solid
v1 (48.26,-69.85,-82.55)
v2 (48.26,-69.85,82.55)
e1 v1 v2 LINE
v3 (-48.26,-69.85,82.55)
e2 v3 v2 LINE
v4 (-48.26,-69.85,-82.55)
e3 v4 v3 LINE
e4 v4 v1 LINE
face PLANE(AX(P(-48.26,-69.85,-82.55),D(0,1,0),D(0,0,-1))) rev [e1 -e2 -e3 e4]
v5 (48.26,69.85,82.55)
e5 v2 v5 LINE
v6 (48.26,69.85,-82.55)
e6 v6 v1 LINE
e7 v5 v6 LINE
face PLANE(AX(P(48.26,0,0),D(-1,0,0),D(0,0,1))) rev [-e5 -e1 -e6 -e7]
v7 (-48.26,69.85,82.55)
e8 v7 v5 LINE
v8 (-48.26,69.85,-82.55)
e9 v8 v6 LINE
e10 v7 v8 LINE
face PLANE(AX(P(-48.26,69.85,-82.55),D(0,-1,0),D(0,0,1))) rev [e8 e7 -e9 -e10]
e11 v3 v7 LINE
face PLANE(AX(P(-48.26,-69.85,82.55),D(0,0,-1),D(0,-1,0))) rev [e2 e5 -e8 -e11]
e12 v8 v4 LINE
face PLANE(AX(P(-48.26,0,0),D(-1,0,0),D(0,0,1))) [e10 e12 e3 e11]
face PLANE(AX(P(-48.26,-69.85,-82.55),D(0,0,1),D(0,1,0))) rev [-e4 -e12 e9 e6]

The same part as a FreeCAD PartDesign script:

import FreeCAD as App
import Part
import Sketcher
Q = App.Units.Quantity


def add_polygon(sketch, points):
    """Adds a closed chain of lines whose ends are joined by coincident constraints."""
    first, n = sketch.GeometryCount, len(points)
    for a, b in zip(points, points[1:] + points[:1]):
        sketch.addGeometry(Part.LineSegment(App.Vector(*a, 0), App.Vector(*b, 0)), False)
    for i in range(n):
        sketch.addConstraint(Sketcher.Constraint("Coincident", first + i, 2, first + (i + 1) % n, 1))

doc = App.newDocument("Part")
body = doc.addObject("PartDesign::Body", "Body")

# Sketch on XZ plane
sketch1 = body.newObject("Sketcher::SketchObject", "Sketch")
sketch1.AttachmentSupport = (doc.getObject("XZ_Plane"), [""])
sketch1.MapMode = "FlatFace"
add_polygon(sketch1, [(-70, -83), (-70, 83), (70, 83), (70, -83)])  # lines 0-3
sketch1.addConstraint([
    Sketcher.Constraint("Vertical", 0),
    Sketcher.Constraint("Horizontal", 1),
    Sketcher.Constraint("Vertical", 2),
    Sketcher.Constraint("Horizontal", 3),
    Sketcher.Constraint("Symmetric", 0, 2, 2, 2, -1, 1),
    Sketcher.Constraint("DistanceX", 1, 1, 1, 2, Q("5.5 in")),
    Sketcher.Constraint("DistanceY", 0, 1, 0, 2, Q("6.5 in")),
])
pad1 = body.newObject("PartDesign::Pad", "Pad")
pad1.Profile = sketch1
pad1.Length = Q("3.8 in")
pad1.Midplane = True
body2 = doc.addObject("PartDesign::Body", "Body001")
doc.recompute()

body.Placement = App.Placement(App.Vector(0, 0, 0), App.Rotation(App.Vector(0, 0, 1), 90))
boolean = body2.newObject("PartDesign::Boolean", "Boolean")
boolean.Type = "Fuse"
boolean.addObjects([body])

doc.recompute()
